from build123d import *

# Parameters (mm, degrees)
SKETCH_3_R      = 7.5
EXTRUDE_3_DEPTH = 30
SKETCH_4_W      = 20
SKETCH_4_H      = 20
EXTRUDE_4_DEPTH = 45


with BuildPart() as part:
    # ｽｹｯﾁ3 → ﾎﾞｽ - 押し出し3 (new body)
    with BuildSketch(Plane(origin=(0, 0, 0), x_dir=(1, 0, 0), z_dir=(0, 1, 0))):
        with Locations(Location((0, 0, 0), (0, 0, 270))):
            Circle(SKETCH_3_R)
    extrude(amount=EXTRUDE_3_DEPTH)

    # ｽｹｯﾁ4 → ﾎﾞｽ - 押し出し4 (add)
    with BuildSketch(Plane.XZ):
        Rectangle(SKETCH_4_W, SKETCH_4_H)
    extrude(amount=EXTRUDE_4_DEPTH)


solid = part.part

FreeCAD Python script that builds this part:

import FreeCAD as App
import Part
import Sketcher

V = App.Vector
Q = App.Units.Quantity


def add_polygon(sketch, points):
    """Adds a closed chain of lines whose ends are joined by coincident constraints."""
    first, n = sketch.GeometryCount, len(points)
    for a, b in zip(points, points[1:] + points[:1]):
        sketch.addGeometry(Part.LineSegment(App.Vector(*a, 0), App.Vector(*b, 0)), False)
    for i in range(n):
        sketch.addConstraint(Sketcher.Constraint("Coincident", first + i, 2, first + (i + 1) % n, 1))

doc = App.newDocument("Part")
body = doc.addObject("PartDesign::Body", "Body")

# Sketch on XZ plane
sketch1 = body.newObject("Sketcher::SketchObject", "Sketch")
sketch1.AttachmentSupport = (doc.getObject("XZ_Plane"), [""])
sketch1.MapMode = "FlatFace"
sketch1.addGeometry(Part.Circle(V(0, 0, 0), V(0, 0, 1), 8), False)
sketch1.addConstraint([
    Sketcher.Constraint("Coincident", 0, 3, -1, 1),
    Sketcher.Constraint("Diameter", 0, Q("15 mm")),
])
pad1 = body.newObject("PartDesign::Pad", "Pad")
pad1.Profile = sketch1
pad1.Length = 30
pad1.Reversed = True

# Sketch on XZ plane
sketch2 = body.newObject("Sketcher::SketchObject", "Sketch001")
sketch2.AttachmentSupport = (doc.getObject("XZ_Plane"), [""])
sketch2.MapMode = "FlatFace"
add_polygon(sketch2, [(-10, 10), (-10, -10), (10, -10), (10, 10)])  # lines 0-3
sketch2.addConstraint([
    Sketcher.Constraint("Vertical", 0),
    Sketcher.Constraint("Horizontal", 1),
    Sketcher.Constraint("Vertical", 2),
    Sketcher.Constraint("Horizontal", 3),
    Sketcher.Constraint("Symmetric", 0, 2, 2, 2, -1, 1),
    Sketcher.Constraint("Equal", 3, 0),
    Sketcher.Constraint("DistanceX", 1, 1, 1, 2, Q("20 mm")),
])
pad2 = body.newObject("PartDesign::Pad", "Pad001")
pad2.Profile = sketch2
pad2.Length = 45

doc.recompute()
